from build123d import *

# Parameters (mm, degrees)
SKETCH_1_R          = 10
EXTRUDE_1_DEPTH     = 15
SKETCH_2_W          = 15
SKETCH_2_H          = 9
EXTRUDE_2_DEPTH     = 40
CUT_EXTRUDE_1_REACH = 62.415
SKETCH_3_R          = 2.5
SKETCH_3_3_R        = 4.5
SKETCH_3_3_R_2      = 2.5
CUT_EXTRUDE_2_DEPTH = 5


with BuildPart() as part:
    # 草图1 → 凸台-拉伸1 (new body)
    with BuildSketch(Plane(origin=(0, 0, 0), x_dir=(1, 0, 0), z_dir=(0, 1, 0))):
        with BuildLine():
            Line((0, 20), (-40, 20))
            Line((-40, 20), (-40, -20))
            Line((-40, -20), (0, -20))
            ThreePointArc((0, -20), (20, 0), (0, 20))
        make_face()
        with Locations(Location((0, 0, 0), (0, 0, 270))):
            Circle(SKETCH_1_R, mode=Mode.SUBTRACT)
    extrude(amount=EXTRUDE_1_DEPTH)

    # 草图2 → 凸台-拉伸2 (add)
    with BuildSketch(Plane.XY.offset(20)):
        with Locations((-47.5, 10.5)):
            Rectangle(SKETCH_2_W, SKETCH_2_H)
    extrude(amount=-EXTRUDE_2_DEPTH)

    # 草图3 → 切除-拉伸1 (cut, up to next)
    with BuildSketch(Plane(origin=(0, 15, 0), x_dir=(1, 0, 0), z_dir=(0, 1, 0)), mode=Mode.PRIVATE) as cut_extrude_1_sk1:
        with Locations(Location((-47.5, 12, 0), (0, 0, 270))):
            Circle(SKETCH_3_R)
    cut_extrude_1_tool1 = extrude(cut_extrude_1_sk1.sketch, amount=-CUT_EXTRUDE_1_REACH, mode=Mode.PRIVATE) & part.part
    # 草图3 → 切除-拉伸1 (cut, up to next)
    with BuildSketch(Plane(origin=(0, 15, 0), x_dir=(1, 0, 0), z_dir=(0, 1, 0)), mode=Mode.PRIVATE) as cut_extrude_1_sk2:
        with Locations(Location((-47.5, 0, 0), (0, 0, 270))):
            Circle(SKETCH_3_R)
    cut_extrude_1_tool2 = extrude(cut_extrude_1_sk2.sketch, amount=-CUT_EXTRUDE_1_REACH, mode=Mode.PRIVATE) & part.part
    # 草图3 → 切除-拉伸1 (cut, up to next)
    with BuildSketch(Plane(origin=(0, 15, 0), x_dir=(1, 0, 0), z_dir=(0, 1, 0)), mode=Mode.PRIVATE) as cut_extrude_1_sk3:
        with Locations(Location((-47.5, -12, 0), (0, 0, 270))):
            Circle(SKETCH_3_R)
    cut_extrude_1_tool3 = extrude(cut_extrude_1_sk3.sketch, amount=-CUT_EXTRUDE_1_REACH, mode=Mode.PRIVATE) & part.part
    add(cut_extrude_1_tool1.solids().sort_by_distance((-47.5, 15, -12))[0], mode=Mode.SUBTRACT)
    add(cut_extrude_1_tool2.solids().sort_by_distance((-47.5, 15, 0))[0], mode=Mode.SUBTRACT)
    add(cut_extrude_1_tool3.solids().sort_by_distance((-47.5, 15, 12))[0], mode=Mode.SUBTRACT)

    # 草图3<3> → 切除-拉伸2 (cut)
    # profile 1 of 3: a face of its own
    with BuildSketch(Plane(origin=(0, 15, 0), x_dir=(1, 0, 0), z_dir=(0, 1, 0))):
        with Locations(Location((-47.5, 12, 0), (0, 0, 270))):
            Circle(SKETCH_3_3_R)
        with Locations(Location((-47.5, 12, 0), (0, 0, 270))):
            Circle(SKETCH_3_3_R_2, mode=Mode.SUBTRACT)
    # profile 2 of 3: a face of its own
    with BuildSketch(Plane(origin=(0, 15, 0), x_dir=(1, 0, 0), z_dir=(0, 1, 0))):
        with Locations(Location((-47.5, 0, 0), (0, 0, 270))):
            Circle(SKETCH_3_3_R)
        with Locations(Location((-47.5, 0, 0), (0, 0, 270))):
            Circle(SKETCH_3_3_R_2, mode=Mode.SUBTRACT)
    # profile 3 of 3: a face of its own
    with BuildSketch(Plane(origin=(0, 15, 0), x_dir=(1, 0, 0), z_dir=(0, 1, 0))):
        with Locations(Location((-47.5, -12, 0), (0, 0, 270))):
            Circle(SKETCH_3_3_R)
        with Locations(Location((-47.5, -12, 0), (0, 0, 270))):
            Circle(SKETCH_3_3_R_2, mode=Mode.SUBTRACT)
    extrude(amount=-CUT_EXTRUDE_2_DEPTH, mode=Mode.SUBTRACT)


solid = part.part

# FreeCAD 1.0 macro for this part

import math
import FreeCAD as App
import Part
import Sketcher


def add_polygon(sketch, points):
    """Adds a closed chain of lines whose ends are joined by coincident constraints."""
    first, n = sketch.GeometryCount, len(points)
    for a, b in zip(points, points[1:] + points[:1]):
        sketch.addGeometry(Part.LineSegment(App.Vector(*a, 0), App.Vector(*b, 0)), False)
    for i in range(n):
        sketch.addConstraint(Sketcher.Constraint("Coincident", first + i, 2, first + (i + 1) % n, 1))

doc = App.newDocument("Part")
params = doc.addObject("Spreadsheet::Sheet", "Params")
for row, (alias, value) in enumerate([
    ("sketch1_diameter", "20 mm"),
    ("sketch1_radius", "20 mm"),
    ("pad1_length", "15 mm"),
    ("sketch2_width", "15 mm"),
    ("sketch2_height", "9 mm"),
    ("pad2_length", "40 mm"),
    ("sketch3_diameter", "5 mm"),
    ("sketch4_diameter", "5 mm"),
    ("sketch5_diameter", "5 mm"),
    ("sketch6_diameter", "9 mm"),
    ("sketch6_diameter2", "5 mm"),
    ("pocket4_length", "5 mm"),
], start=1):
    params.set(f"A{row}", alias)
    params.set(f"B{row}", "=" + value)
    params.setAlias(f"B{row}", alias)

body = doc.addObject("PartDesign::Body", "Body")

# Sketch on XZ plane
sketch1 = body.newObject("Sketcher::SketchObject", "Sketch")
sketch1.AttachmentSupport = (doc.getObject("XZ_Plane"), [""])
sketch1.MapMode = "FlatFace"
sketch1.addGeometry(Part.LineSegment(App.Vector(0, -20, 0), App.Vector(-40, -20, 0)), False)
sketch1.addGeometry(Part.LineSegment(App.Vector(-40, -20, 0), App.Vector(-40, 20, 0)), False)
sketch1.addGeometry(Part.LineSegment(App.Vector(-40, 20, 0), App.Vector(0, 20, 0)), False)
sketch1.addGeometry(Part.ArcOfCircle(Part.Circle(App.Vector(0, 0, 0), App.Vector(0, 0, 1), 20), math.radians(-90), math.radians(90)), False)
sketch1.addGeometry(Part.Circle(App.Vector(0, 0, 0), App.Vector(0, 0, 1), 10), False)
sketch1.addConstraint(Sketcher.Constraint("Coincident", 0, 2, 1, 1))
sketch1.addConstraint(Sketcher.Constraint("Coincident", 1, 2, 2, 1))
sketch1.addConstraint(Sketcher.Constraint("Tangent", 2, 2, 3, 2))
sketch1.addConstraint(Sketcher.Constraint("Tangent", 3, 1, 0, 1))
sketch1.addConstraint(Sketcher.Constraint("Horizontal", 0))
sketch1.addConstraint(Sketcher.Constraint("Vertical", 1))
sketch1.addConstraint(Sketcher.Constraint("Horizontal", 2))
sketch1.addConstraint(Sketcher.Constraint("Coincident", 3, 3, -1, 1))
sketch1.addConstraint(Sketcher.Constraint("Coincident", 4, 3, -1, 1))
sketch1.addConstraint(Sketcher.Constraint("Equal", 2, 1))
sketch1.addConstraint(Sketcher.Constraint("Diameter", 4, 20.0))
sketch1.addConstraint(Sketcher.Constraint("Radius", 3, 20.0))
sketch1.setExpression("Constraints[10]", "Params.sketch1_diameter")
sketch1.setExpression("Constraints[11]", "Params.sketch1_radius")
pad1 = body.newObject("PartDesign::Pad", "Pad")
pad1.Profile = sketch1
pad1.setExpression("Length", "Params.pad1_length")
pad1.Reversed = True

# Sketch on XY plane
sketch2 = body.newObject("Sketcher::SketchObject", "Sketch001")
sketch2.AttachmentSupport = (doc.getObject("XY_Plane"), [""])
sketch2.MapMode = "FlatFace"
sketch2.AttachmentOffset = App.Placement(App.Vector(0, 0, 20), App.Rotation())
add_polygon(sketch2, [(-55, 15), (-55, 6), (-40, 6), (-40, 15)])  # lines 0-3
sketch2.addConstraint(Sketcher.Constraint("Vertical", 0))
sketch2.addConstraint(Sketcher.Constraint("Horizontal", 1))
sketch2.addConstraint(Sketcher.Constraint("Vertical", 2))
sketch2.addConstraint(Sketcher.Constraint("Horizontal", 3))
sketch2.addConstraint(Sketcher.Constraint("DistanceX", 1, 1, 1, 2, 15.0))
sketch2.addConstraint(Sketcher.Constraint("DistanceY", 0, 2, 0, 1, 9.0))
sketch2.addConstraint(Sketcher.Constraint("DistanceX", 0, 2, -1, 1, 55.0))
sketch2.addConstraint(Sketcher.Constraint("DistanceY", -1, 1, 0, 2, 6.0))
sketch2.setExpression("Constraints[8]", "Params.sketch2_width")
sketch2.setExpression("Constraints[9]", "Params.sketch2_height")
pad2 = body.newObject("PartDesign::Pad", "Pad001")
pad2.Profile = sketch2
pad2.setExpression("Length", "Params.pad2_length")
pad2.Reversed = True

# Sketch on XZ plane
sketch3 = body.newObject("Sketcher::SketchObject", "Sketch002")
sketch3.AttachmentSupport = (doc.getObject("XZ_Plane"), [""])
sketch3.MapMode = "FlatFace"
sketch3.AttachmentOffset = App.Placement(App.Vector(0, 0, -15), App.Rotation())
sketch3.addGeometry(Part.Circle(App.Vector(-47.5, -12, 0), App.Vector(0, 0, 1), 2.5), False)
sketch3.addConstraint(Sketcher.Constraint("Diameter", 0, 5.0))
sketch3.addConstraint(Sketcher.Constraint("DistanceY", 0, 3, -1, 1, 12.0))
sketch3.addConstraint(Sketcher.Constraint("DistanceX", 0, 3, -1, 1, 47.5))
sketch3.setExpression("Constraints[0]", "Params.sketch3_diameter")
pocket1 = body.newObject("PartDesign::Pocket", "Pocket")
pocket1.Profile = sketch3
pocket1.Type = "UpToFirst"
pocket1.Reversed = True

# Sketch on XZ plane
sketch4 = body.newObject("Sketcher::SketchObject", "Sketch003")
sketch4.AttachmentSupport = (doc.getObject("XZ_Plane"), [""])
sketch4.MapMode = "FlatFace"
sketch4.AttachmentOffset = App.Placement(App.Vector(0, 0, -15), App.Rotation())
sketch4.addGeometry(Part.Circle(App.Vector(-47.5, 0, 0), App.Vector(0, 0, 1), 2.5), False)
sketch4.addConstraint(Sketcher.Constraint("PointOnObject", 0, 3, -1))
sketch4.addConstraint(Sketcher.Constraint("Diameter", 0, 5.0))
sketch4.addConstraint(Sketcher.Constraint("DistanceX", 0, 3, -1, 1, 47.5))
sketch4.setExpression("Constraints[1]", "Params.sketch4_diameter")
pocket2 = body.newObject("PartDesign::Pocket", "Pocket001")
pocket2.Profile = sketch4
pocket2.Type = "UpToFirst"
pocket2.Reversed = True

# Sketch on XZ plane
sketch5 = body.newObject("Sketcher::SketchObject", "Sketch004")
sketch5.AttachmentSupport = (doc.getObject("XZ_Plane"), [""])
sketch5.MapMode = "FlatFace"
sketch5.AttachmentOffset = App.Placement(App.Vector(0, 0, -15), App.Rotation())
sketch5.addGeometry(Part.Circle(App.Vector(-47.5, 12, 0), App.Vector(0, 0, 1), 2.5), False)
sketch5.addConstraint(Sketcher.Constraint("Diameter", 0, 5.0))
sketch5.addConstraint(Sketcher.Constraint("DistanceY", -1, 1, 0, 3, 12.0))
sketch5.addConstraint(Sketcher.Constraint("DistanceX", 0, 3, -1, 1, 47.5))
sketch5.setExpression("Constraints[0]", "Params.sketch5_diameter")
pocket3 = body.newObject("PartDesign::Pocket", "Pocket002")
pocket3.Profile = sketch5
pocket3.Type = "UpToFirst"
pocket3.Reversed = True

# Sketch on XZ plane
sketch6 = body.newObject("Sketcher::SketchObject", "Sketch005")
sketch6.AttachmentSupport = (doc.getObject("XZ_Plane"), [""])
sketch6.MapMode = "FlatFace"
sketch6.AttachmentOffset = App.Placement(App.Vector(0, 0, -15), App.Rotation())
sketch6.addGeometry(Part.Circle(App.Vector(-47.5, -12, 0), App.Vector(0, 0, 1), 4.5), False)
sketch6.addGeometry(Part.Circle(App.Vector(-47.5, -12, 0), App.Vector(0, 0, 1), 2.5), False)
sketch6.addGeometry(Part.Circle(App.Vector(-47.5, 0, 0), App.Vector(0, 0, 1), 4.5), False)
sketch6.addGeometry(Part.Circle(App.Vector(-47.5, 0, 0), App.Vector(0, 0, 1), 2.5), False)
sketch6.addGeometry(Part.Circle(App.Vector(-47.5, 12, 0), App.Vector(0, 0, 1), 4.5), False)
sketch6.addGeometry(Part.Circle(App.Vector(-47.5, 12, 0), App.Vector(0, 0, 1), 2.5), False)
sketch6.addConstraint(Sketcher.Constraint("Coincident", 1, 3, 0, 3))
sketch6.addConstraint(Sketcher.Constraint("Coincident", 3, 3, 2, 3))
sketch6.addConstraint(Sketcher.Constraint("Coincident", 5, 3, 4, 3))
sketch6.addConstraint(Sketcher.Constraint("Equal", 0, 2))
sketch6.addConstraint(Sketcher.Constraint("Equal", 1, 3))
sketch6.addConstraint(Sketcher.Constraint("Equal", 2, 4))
sketch6.addConstraint(Sketcher.Constraint("Equal", 3, 5))
sketch6.addConstraint(Sketcher.Constraint("Symmetric", 0, 3, 4, 3, -1))
sketch6.addConstraint(Sketcher.Constraint("PointOnObject", 2, 3, -1))
sketch6.addConstraint(Sketcher.Constraint("Vertical", 1, 3, 2, 3))
sketch6.addConstraint(Sketcher.Constraint("Diameter", 0, 9.0))
sketch6.addConstraint(Sketcher.Constraint("Diameter", 1, 5.0))
sketch6.addConstraint(Sketcher.Constraint("DistanceY", 0, 3, -1, 1, 12.0))
sketch6.addConstraint(Sketcher.Constraint("DistanceX", 0, 3, -1, 1, 47.5))
sketch6.setExpression("Constraints[10]", "Params.sketch6_diameter")
sketch6.setExpression("Constraints[11]", "Params.sketch6_diameter2")
pocket4 = body.newObject("PartDesign::Pocket", "Pocket003")
pocket4.Profile = sketch6
pocket4.setExpression("Length", "Params.pocket4_length")
pocket4.Reversed = True

doc.recompute()
